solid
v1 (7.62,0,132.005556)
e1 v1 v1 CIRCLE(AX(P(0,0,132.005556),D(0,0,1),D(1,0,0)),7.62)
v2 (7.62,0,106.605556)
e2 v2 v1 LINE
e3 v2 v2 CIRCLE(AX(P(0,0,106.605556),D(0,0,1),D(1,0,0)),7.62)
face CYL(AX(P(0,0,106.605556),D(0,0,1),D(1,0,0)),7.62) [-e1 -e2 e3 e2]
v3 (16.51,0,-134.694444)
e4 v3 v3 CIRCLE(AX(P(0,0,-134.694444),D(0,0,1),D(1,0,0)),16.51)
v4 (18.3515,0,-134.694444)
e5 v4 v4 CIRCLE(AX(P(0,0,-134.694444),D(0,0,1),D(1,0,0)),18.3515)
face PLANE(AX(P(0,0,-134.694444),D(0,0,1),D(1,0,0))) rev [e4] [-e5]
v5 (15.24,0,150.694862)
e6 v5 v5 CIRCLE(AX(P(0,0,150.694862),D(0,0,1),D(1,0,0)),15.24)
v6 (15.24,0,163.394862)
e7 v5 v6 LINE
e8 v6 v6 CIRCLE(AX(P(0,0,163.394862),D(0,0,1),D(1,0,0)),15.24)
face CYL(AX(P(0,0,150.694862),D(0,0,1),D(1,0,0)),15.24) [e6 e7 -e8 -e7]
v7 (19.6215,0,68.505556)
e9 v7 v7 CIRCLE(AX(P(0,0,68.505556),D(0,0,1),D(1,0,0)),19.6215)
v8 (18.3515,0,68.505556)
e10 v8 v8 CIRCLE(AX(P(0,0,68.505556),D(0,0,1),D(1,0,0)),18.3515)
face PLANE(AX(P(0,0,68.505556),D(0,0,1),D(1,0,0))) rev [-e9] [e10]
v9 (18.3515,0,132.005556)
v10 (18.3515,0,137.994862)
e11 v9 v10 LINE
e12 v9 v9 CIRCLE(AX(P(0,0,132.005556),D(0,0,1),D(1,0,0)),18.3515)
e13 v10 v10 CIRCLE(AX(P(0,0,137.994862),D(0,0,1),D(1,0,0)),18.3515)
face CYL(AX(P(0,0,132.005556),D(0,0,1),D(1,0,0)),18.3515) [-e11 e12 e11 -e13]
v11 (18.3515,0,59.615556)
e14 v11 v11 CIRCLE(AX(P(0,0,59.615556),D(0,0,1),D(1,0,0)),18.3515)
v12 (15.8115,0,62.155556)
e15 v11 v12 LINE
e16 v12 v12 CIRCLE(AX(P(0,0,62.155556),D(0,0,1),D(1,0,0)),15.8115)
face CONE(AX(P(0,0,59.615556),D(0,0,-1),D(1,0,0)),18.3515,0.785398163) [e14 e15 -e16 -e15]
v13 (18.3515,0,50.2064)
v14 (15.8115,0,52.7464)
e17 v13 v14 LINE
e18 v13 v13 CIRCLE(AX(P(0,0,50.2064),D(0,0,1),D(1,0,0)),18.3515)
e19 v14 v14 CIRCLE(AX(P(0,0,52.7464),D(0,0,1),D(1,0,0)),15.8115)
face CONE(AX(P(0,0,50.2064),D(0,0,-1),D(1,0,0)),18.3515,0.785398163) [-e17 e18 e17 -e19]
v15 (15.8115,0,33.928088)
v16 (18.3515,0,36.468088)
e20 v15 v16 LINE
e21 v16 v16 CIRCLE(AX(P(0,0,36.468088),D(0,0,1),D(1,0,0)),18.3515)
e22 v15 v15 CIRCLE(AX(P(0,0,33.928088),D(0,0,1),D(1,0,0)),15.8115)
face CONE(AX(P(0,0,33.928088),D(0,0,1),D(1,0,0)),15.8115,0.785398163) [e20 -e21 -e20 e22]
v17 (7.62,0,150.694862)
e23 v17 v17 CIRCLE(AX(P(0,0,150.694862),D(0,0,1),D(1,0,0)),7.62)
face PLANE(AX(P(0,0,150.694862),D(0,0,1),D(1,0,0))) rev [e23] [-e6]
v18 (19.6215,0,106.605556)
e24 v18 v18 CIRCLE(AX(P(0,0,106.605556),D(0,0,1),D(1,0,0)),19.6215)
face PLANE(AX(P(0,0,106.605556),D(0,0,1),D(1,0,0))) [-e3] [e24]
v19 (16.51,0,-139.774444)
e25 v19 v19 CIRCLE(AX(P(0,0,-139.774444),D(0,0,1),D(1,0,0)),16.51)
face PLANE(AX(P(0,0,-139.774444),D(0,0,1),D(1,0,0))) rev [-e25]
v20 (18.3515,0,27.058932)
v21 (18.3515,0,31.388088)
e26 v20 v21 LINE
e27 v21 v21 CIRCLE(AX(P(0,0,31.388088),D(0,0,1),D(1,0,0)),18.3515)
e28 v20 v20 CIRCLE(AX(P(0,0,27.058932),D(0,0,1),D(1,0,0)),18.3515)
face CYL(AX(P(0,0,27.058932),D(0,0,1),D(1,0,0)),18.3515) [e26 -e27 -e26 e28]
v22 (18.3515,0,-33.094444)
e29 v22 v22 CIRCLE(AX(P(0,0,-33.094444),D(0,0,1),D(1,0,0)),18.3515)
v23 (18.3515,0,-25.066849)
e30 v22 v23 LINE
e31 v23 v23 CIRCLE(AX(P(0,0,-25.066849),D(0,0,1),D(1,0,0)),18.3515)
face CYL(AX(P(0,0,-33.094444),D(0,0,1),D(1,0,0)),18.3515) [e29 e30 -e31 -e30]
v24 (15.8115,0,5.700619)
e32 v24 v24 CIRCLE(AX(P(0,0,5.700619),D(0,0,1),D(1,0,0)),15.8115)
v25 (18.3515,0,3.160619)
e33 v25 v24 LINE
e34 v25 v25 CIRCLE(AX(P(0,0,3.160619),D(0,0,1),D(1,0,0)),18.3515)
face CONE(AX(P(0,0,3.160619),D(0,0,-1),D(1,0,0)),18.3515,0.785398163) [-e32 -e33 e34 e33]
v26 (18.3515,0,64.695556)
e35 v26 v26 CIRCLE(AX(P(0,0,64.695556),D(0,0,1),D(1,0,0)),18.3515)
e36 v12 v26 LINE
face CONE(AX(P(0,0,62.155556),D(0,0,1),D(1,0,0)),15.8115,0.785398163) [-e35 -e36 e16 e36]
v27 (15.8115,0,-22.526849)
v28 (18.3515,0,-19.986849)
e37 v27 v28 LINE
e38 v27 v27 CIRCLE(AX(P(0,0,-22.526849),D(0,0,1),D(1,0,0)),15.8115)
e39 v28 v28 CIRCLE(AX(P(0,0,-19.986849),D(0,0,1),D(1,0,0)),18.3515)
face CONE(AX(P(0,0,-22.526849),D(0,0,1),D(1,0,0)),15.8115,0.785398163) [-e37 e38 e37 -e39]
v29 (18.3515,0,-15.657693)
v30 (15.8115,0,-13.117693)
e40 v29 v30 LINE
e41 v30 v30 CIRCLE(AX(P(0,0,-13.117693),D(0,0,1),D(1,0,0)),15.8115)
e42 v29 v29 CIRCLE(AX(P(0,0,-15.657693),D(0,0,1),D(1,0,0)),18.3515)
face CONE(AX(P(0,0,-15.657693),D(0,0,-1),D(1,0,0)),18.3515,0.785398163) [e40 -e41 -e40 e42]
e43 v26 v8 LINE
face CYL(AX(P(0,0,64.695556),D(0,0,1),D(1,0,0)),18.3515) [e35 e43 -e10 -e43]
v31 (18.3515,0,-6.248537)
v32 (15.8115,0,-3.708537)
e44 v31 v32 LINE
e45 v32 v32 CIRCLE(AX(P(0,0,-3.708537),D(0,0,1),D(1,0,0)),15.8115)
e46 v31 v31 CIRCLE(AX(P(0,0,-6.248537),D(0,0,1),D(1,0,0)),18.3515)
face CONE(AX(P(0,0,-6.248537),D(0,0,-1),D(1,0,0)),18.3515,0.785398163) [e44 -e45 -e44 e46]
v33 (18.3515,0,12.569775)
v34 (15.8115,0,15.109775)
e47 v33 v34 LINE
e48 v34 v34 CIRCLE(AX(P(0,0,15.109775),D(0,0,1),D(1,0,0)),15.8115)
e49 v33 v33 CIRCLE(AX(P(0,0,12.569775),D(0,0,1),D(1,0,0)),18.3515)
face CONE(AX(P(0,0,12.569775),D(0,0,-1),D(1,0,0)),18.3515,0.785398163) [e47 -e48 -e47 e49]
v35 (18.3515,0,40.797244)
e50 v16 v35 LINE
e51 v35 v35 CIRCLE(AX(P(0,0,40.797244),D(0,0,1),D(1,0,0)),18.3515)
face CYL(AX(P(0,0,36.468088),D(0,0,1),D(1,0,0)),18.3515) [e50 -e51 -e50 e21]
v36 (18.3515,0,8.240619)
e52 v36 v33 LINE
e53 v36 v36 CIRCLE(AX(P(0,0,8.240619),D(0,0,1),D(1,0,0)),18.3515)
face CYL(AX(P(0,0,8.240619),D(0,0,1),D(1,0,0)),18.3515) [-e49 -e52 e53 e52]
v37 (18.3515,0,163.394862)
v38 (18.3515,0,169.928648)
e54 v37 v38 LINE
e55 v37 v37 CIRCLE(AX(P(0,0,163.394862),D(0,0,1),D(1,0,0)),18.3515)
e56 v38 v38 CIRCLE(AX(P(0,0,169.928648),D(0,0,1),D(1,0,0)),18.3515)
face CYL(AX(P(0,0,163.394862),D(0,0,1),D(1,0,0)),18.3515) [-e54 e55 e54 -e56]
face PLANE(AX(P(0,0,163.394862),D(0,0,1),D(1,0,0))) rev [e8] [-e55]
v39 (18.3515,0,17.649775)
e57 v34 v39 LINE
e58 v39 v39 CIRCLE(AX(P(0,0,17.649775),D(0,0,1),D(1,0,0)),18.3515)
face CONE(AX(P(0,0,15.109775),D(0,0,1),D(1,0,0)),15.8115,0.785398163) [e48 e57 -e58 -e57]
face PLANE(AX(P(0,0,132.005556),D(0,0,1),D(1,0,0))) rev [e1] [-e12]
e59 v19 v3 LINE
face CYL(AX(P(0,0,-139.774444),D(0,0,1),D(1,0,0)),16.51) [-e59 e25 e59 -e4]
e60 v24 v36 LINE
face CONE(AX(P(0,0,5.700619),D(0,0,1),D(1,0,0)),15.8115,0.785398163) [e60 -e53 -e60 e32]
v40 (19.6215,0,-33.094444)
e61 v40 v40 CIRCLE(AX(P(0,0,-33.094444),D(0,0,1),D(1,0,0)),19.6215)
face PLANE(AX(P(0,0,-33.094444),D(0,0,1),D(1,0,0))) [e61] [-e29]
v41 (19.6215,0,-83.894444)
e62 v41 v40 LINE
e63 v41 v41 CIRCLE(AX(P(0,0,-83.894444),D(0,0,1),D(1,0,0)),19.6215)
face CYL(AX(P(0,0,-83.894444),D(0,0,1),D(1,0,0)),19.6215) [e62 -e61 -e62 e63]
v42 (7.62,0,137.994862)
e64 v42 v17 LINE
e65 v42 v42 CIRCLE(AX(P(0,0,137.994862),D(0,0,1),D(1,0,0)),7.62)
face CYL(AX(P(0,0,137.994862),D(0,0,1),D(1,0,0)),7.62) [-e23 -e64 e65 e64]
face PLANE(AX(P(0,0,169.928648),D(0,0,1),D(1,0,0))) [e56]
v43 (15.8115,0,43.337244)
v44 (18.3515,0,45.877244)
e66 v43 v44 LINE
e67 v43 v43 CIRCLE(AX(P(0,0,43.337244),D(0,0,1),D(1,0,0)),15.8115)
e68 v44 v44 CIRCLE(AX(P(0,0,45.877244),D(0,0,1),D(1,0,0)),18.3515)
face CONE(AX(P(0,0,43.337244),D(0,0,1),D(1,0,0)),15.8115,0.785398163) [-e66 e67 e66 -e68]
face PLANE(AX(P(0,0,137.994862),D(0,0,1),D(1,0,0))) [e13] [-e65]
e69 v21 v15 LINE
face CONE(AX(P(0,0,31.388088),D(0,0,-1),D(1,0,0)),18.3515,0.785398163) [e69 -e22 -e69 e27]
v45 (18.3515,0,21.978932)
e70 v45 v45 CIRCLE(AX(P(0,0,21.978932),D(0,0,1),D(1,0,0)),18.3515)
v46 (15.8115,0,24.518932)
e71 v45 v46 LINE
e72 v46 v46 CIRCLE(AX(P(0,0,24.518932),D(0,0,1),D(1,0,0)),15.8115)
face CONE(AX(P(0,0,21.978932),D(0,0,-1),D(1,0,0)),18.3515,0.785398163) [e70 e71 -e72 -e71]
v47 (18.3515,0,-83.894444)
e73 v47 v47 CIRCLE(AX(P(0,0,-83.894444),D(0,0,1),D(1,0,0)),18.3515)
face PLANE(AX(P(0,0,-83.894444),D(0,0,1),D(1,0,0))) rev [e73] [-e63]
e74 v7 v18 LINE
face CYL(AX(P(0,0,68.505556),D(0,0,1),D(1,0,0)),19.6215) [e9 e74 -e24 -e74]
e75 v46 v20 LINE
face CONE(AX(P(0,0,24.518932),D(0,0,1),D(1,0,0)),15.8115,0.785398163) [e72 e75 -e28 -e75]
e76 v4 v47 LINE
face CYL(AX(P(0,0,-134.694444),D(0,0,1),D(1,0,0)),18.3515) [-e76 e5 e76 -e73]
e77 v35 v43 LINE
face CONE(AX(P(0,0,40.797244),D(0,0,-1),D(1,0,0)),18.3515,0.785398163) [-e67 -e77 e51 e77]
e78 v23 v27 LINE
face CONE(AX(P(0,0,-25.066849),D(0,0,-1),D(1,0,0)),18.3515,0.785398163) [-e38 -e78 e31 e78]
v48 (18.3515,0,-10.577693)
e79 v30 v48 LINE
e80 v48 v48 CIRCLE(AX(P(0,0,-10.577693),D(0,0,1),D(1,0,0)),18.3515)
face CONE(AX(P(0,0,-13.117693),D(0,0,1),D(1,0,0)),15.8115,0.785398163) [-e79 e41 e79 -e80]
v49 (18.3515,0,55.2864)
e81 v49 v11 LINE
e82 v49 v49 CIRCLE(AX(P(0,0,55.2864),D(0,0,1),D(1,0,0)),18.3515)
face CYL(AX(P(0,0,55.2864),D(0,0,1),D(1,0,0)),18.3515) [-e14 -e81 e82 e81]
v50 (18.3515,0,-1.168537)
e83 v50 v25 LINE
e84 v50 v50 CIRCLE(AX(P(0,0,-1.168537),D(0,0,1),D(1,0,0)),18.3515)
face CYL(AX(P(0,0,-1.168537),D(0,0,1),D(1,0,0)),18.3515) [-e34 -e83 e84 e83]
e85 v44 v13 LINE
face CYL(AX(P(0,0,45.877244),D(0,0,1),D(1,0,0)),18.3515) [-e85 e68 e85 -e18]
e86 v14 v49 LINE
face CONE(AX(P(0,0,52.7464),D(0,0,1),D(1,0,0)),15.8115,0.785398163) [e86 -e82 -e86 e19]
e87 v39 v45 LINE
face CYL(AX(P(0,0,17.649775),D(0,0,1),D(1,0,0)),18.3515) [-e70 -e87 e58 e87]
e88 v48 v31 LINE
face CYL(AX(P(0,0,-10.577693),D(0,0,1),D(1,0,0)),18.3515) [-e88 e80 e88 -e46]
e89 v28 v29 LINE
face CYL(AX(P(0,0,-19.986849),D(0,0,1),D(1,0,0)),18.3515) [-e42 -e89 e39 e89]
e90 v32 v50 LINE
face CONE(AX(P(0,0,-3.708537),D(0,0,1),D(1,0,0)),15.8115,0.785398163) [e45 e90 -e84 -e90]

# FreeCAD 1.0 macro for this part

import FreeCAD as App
import Part
import Sketcher
Q = App.Units.Quantity

doc = App.newDocument("Part")
body = doc.addObject("PartDesign::Body", "Body")

# Sketch on XZ plane
sketch1 = body.newObject("Sketcher::SketchObject", "Sketch")
sketch1.AttachmentSupport = (doc.getObject("XZ_Plane"), [""])
sketch1.MapMode = "FlatFace"
sketch1.addGeometry([
    Part.LineSegment(App.Vector(18.3515, 169.928648, 0), App.Vector(0, 169.928648, 0)),  # 0
    Part.LineSegment(App.Vector(0, 169.928648, 0), App.Vector(0, -139.774444, 0)),  # 1
    Part.LineSegment(App.Vector(0, -139.774444, 0), App.Vector(16.51, -139.774444, 0)),  # 2
    Part.LineSegment(App.Vector(16.51, -139.774444, 0), App.Vector(16.51, -134.694444, 0)),  # 3
    Part.LineSegment(App.Vector(16.51, -134.694444, 0), App.Vector(18.3515, -134.694444, 0)),  # 4
    Part.LineSegment(App.Vector(18.3515, -134.694444, 0), App.Vector(18.3515, -83.894444, 0)),  # 5
    Part.LineSegment(App.Vector(18.3515, -83.894444, 0), App.Vector(19.6215, -83.894444, 0)),  # 6
    Part.LineSegment(App.Vector(19.6215, -83.894444, 0), App.Vector(19.6215, -33.094444, 0)),  # 7
    Part.LineSegment(App.Vector(19.6215, -33.094444, 0), App.Vector(18.3515, -33.094444, 0)),  # 8
    Part.LineSegment(App.Vector(18.3515, -33.094444, 0), App.Vector(18.3515, -25.066849, 0)),  # 9
    Part.LineSegment(App.Vector(18.3515, -25.066849, 0), App.Vector(15.8115, -22.526849, 0)),  # 10
    Part.LineSegment(App.Vector(15.8115, -22.526849, 0), App.Vector(18.3515, -19.986849, 0)),  # 11
    Part.LineSegment(App.Vector(18.3515, -19.986849, 0), App.Vector(18.3515, -15.657693, 0)),  # 12
    Part.LineSegment(App.Vector(18.3515, -15.657693, 0), App.Vector(15.8115, -13.117693, 0)),  # 13
    Part.LineSegment(App.Vector(15.8115, -13.117693, 0), App.Vector(18.3515, -10.577693, 0)),  # 14
    Part.LineSegment(App.Vector(18.3515, -10.577693, 0), App.Vector(18.3515, -6.248537, 0)),  # 15
    Part.LineSegment(App.Vector(18.3515, -6.248537, 0), App.Vector(15.8115, -3.708537, 0)),  # 16
    Part.LineSegment(App.Vector(15.8115, -3.708537, 0), App.Vector(18.3515, -1.168537, 0)),  # 17
    Part.LineSegment(App.Vector(18.3515, -1.168537, 0), App.Vector(18.3515, 3.160619, 0)),  # 18
    Part.LineSegment(App.Vector(18.3515, 3.160619, 0), App.Vector(15.8115, 5.700619, 0)),  # 19
    Part.LineSegment(App.Vector(15.8115, 5.700619, 0), App.Vector(18.3515, 8.240619, 0)),  # 20
    Part.LineSegment(App.Vector(18.3515, 8.240619, 0), App.Vector(18.3515, 12.569775, 0)),  # 21
    Part.LineSegment(App.Vector(18.3515, 12.569775, 0), App.Vector(15.8115, 15.109775, 0)),  # 22
    Part.LineSegment(App.Vector(15.8115, 15.109775, 0), App.Vector(18.3515, 17.649775, 0)),  # 23
    Part.LineSegment(App.Vector(18.3515, 17.649775, 0), App.Vector(18.3515, 21.978932, 0)),  # 24
    Part.LineSegment(App.Vector(18.3515, 21.978932, 0), App.Vector(15.8115, 24.518932, 0)),  # 25
    Part.LineSegment(App.Vector(15.8115, 24.518932, 0), App.Vector(18.3515, 27.058932, 0)),  # 26
    Part.LineSegment(App.Vector(18.3515, 27.058932, 0), App.Vector(18.3515, 31.388088, 0)),  # 27
    Part.LineSegment(App.Vector(18.3515, 31.388088, 0), App.Vector(15.8115, 33.928088, 0)),  # 28
    Part.LineSegment(App.Vector(15.8115, 33.928088, 0), App.Vector(18.3515, 36.468088, 0)),  # 29
    Part.LineSegment(App.Vector(18.3515, 36.468088, 0), App.Vector(18.3515, 40.797244, 0)),  # 30
    Part.LineSegment(App.Vector(18.3515, 40.797244, 0), App.Vector(15.8115, 43.337244, 0)),  # 31
    Part.LineSegment(App.Vector(15.8115, 43.337244, 0), App.Vector(18.3515, 45.877244, 0)),  # 32
    Part.LineSegment(App.Vector(18.3515, 45.877244, 0), App.Vector(18.3515, 50.2064, 0)),  # 33
    Part.LineSegment(App.Vector(18.3515, 50.2064, 0), App.Vector(15.8115, 52.7464, 0)),  # 34
    Part.LineSegment(App.Vector(15.8115, 52.7464, 0), App.Vector(18.3515, 55.2864, 0)),  # 35
    Part.LineSegment(App.Vector(18.3515, 55.2864, 0), App.Vector(18.3515, 59.615556, 0)),  # 36
    Part.LineSegment(App.Vector(18.3515, 59.615556, 0), App.Vector(15.8115, 62.155556, 0)),  # 37
    Part.LineSegment(App.Vector(15.8115, 62.155556, 0), App.Vector(18.3515, 64.695556, 0)),  # 38
    Part.LineSegment(App.Vector(18.3515, 64.695556, 0), App.Vector(18.3515, 68.505556, 0)),  # 39
    Part.LineSegment(App.Vector(18.3515, 68.505556, 0), App.Vector(19.6215, 68.505556, 0)),  # 40
    Part.LineSegment(App.Vector(19.6215, 68.505556, 0), App.Vector(19.6215, 106.605556, 0)),  # 41
    Part.LineSegment(App.Vector(19.6215, 106.605556, 0), App.Vector(7.62, 106.605556, 0)),  # 42
    Part.LineSegment(App.Vector(7.62, 106.605556, 0), App.Vector(7.62, 132.005556, 0)),  # 43
    Part.LineSegment(App.Vector(7.62, 132.005556, 0), App.Vector(18.3515, 132.005556, 0)),  # 44
    Part.LineSegment(App.Vector(18.3515, 132.005556, 0), App.Vector(18.3515, 137.994862, 0)),  # 45
    Part.LineSegment(App.Vector(18.3515, 137.994862, 0), App.Vector(7.62, 137.994862, 0)),  # 46
    Part.LineSegment(App.Vector(7.62, 137.994862, 0), App.Vector(7.62, 150.694862, 0)),  # 47
    Part.LineSegment(App.Vector(7.62, 150.694862, 0), App.Vector(15.24, 150.694862, 0)),  # 48
    Part.LineSegment(App.Vector(15.24, 150.694862, 0), App.Vector(15.24, 163.394862, 0)),  # 49
    Part.LineSegment(App.Vector(15.24, 163.394862, 0), App.Vector(18.3515, 163.394862, 0)),  # 50
    Part.LineSegment(App.Vector(18.3515, 163.394862, 0), App.Vector(18.3515, 169.928648, 0)),  # 51
], False)
sketch1.addConstraint([
    Sketcher.Constraint("Coincident", 0, 2, 1, 1),
    Sketcher.Constraint("Coincident", 1, 2, 2, 1),
    Sketcher.Constraint("Coincident", 2, 2, 3, 1),
    Sketcher.Constraint("Coincident", 3, 2, 4, 1),
    Sketcher.Constraint("Coincident", 4, 2, 5, 1),
    Sketcher.Constraint("Coincident", 5, 2, 6, 1),
    Sketcher.Constraint("Coincident", 6, 2, 7, 1),
    Sketcher.Constraint("Coincident", 7, 2, 8, 1),
    Sketcher.Constraint("Coincident", 8, 2, 9, 1),
    Sketcher.Constraint("Coincident", 9, 2, 10, 1),
    Sketcher.Constraint("Coincident", 10, 2, 11, 1),
    Sketcher.Constraint("Coincident", 11, 2, 12, 1),
    Sketcher.Constraint("Coincident", 12, 2, 13, 1),
    Sketcher.Constraint("Coincident", 13, 2, 14, 1),
    Sketcher.Constraint("Coincident", 14, 2, 15, 1),
    Sketcher.Constraint("Coincident", 15, 2, 16, 1),
    Sketcher.Constraint("Coincident", 16, 2, 17, 1),
    Sketcher.Constraint("Coincident", 17, 2, 18, 1),
    Sketcher.Constraint("Coincident", 18, 2, 19, 1),
    Sketcher.Constraint("Coincident", 19, 2, 20, 1),
    Sketcher.Constraint("Coincident", 20, 2, 21, 1),
    Sketcher.Constraint("Coincident", 21, 2, 22, 1),
    Sketcher.Constraint("Coincident", 22, 2, 23, 1),
    Sketcher.Constraint("Coincident", 23, 2, 24, 1),
    Sketcher.Constraint("Coincident", 24, 2, 25, 1),
    Sketcher.Constraint("Coincident", 25, 2, 26, 1),
    Sketcher.Constraint("Coincident", 26, 2, 27, 1),
    Sketcher.Constraint("Coincident", 27, 2, 28, 1),
    Sketcher.Constraint("Coincident", 28, 2, 29, 1),
    Sketcher.Constraint("Coincident", 29, 2, 30, 1),
    Sketcher.Constraint("Coincident", 30, 2, 31, 1),
    Sketcher.Constraint("Coincident", 31, 2, 32, 1),
    Sketcher.Constraint("Coincident", 32, 2, 33, 1),
    Sketcher.Constraint("Coincident", 33, 2, 34, 1),
    Sketcher.Constraint("Coincident", 34, 2, 35, 1),
    Sketcher.Constraint("Coincident", 35, 2, 36, 1),
    Sketcher.Constraint("Coincident", 36, 2, 37, 1),
    Sketcher.Constraint("Coincident", 37, 2, 38, 1),
    Sketcher.Constraint("Coincident", 38, 2, 39, 1),
    Sketcher.Constraint("Coincident", 39, 2, 40, 1),
    Sketcher.Constraint("Coincident", 40, 2, 41, 1),
    Sketcher.Constraint("Coincident", 41, 2, 42, 1),
    Sketcher.Constraint("Coincident", 42, 2, 43, 1),
    Sketcher.Constraint("Coincident", 43, 2, 44, 1),
    Sketcher.Constraint("Coincident", 44, 2, 45, 1),
    Sketcher.Constraint("Coincident", 45, 2, 46, 1),
    Sketcher.Constraint("Coincident", 46, 2, 47, 1),
    Sketcher.Constraint("Coincident", 47, 2, 48, 1),
    Sketcher.Constraint("Coincident", 48, 2, 49, 1),
    Sketcher.Constraint("Coincident", 49, 2, 50, 1),
    Sketcher.Constraint("Coincident", 50, 2, 51, 1),
    Sketcher.Constraint("Coincident", 51, 2, 0, 1),
    Sketcher.Constraint("Horizontal", 0),
    Sketcher.Constraint("Vertical", 1),
    Sketcher.Constraint("Horizontal", 2),
    Sketcher.Constraint("Vertical", 3),
    Sketcher.Constraint("Horizontal", 4),
    Sketcher.Constraint("Vertical", 5),
    Sketcher.Constraint("Horizontal", 6),
    Sketcher.Constraint("Vertical", 7),
    Sketcher.Constraint("Horizontal", 8),
    Sketcher.Constraint("Vertical", 9),
    Sketcher.Constraint("Vertical", 12),
    Sketcher.Constraint("Vertical", 15),
    Sketcher.Constraint("Vertical", 18),
    Sketcher.Constraint("Vertical", 21),
    Sketcher.Constraint("Vertical", 24),
    Sketcher.Constraint("Vertical", 27),
    Sketcher.Constraint("Vertical", 30),
    Sketcher.Constraint("Vertical", 33),
    Sketcher.Constraint("Vertical", 36),
    Sketcher.Constraint("Vertical", 39),
    Sketcher.Constraint("Horizontal", 40),
    Sketcher.Constraint("Vertical", 41),
    Sketcher.Constraint("Horizontal", 42),
    Sketcher.Constraint("Vertical", 43),
    Sketcher.Constraint("Horizontal", 44),
    Sketcher.Constraint("Vertical", 45),
    Sketcher.Constraint("Horizontal", 46),
    Sketcher.Constraint("Vertical", 47),
    Sketcher.Constraint("Horizontal", 48),
    Sketcher.Constraint("Vertical", 49),
    Sketcher.Constraint("Horizontal", 50),
    Sketcher.Constraint("Vertical", 51),
    Sketcher.Constraint("PointOnObject", 0, 2, -2),
    Sketcher.Constraint("Perpendicular", 10, 11),
    Sketcher.Constraint("Perpendicular", 11, 13),
    Sketcher.Constraint("Perpendicular", 13, 14),
    Sketcher.Constraint("Perpendicular", 14, 16),
    Sketcher.Constraint("Perpendicular", 16, 17),
    Sketcher.Constraint("Perpendicular", 17, 19),
    Sketcher.Constraint("Perpendicular", 19, 20),
    Sketcher.Constraint("Perpendicular", 20, 22),
    Sketcher.Constraint("Perpendicular", 22, 23),
    Sketcher.Constraint("Perpendicular", 23, 25),
    Sketcher.Constraint("Perpendicular", 25, 26),
    Sketcher.Constraint("Perpendicular", 26, 28),
    Sketcher.Constraint("Perpendicular", 28, 29),
    Sketcher.Constraint("Perpendicular", 29, 31),
    Sketcher.Constraint("Perpendicular", 31, 32),
    Sketcher.Constraint("Perpendicular", 32, 34),
    Sketcher.Constraint("Perpendicular", 34, 35),
    Sketcher.Constraint("Perpendicular", 35, 37),
    Sketcher.Constraint("Perpendicular", 37, 38),
    Sketcher.Constraint("Vertical", 5, 2, 8, 2),
    Sketcher.Constraint("Vertical", 9, 2, 11, 2),
    Sketcher.Constraint("Vertical", 10, 2, 13, 2),
    Sketcher.Constraint("Vertical", 12, 2, 14, 2),
    Sketcher.Constraint("Vertical", 13, 2, 16, 2),
    Sketcher.Constraint("Vertical", 15, 2, 17, 2),
    Sketcher.Constraint("Vertical", 16, 2, 19, 2),
    Sketcher.Constraint("Vertical", 18, 2, 20, 2),
    Sketcher.Constraint("Vertical", 19, 2, 22, 2),
    Sketcher.Constraint("Vertical", 21, 2, 23, 2),
    Sketcher.Constraint("Vertical", 22, 2, 25, 2),
    Sketcher.Constraint("Vertical", 24, 2, 26, 2),
    Sketcher.Constraint("Vertical", 25, 2, 28, 2),
    Sketcher.Constraint("Vertical", 27, 2, 29, 2),
    Sketcher.Constraint("Vertical", 28, 2, 31, 2),
    Sketcher.Constraint("Vertical", 30, 2, 32, 2),
    Sketcher.Constraint("Vertical", 31, 2, 34, 2),
    Sketcher.Constraint("Vertical", 33, 2, 35, 2),
    Sketcher.Constraint("Vertical", 34, 2, 37, 2),
    Sketcher.Constraint("Vertical", 36, 2, 38, 2),
    Sketcher.Constraint("Vertical", 7, 2, 40, 2),
    Sketcher.Constraint("Vertical", 39, 2, 44, 2),
    Sketcher.Constraint("Vertical", 43, 2, 46, 2),
    Sketcher.Constraint("Vertical", 45, 2, 50, 2),
    Sketcher.Constraint("Equal", 5, 7),
    Sketcher.Constraint("Equal", 12, 15),
    Sketcher.Constraint("Equal", 15, 18),
    Sketcher.Constraint("Equal", 18, 21),
    Sketcher.Constraint("Equal", 21, 24),
    Sketcher.Constraint("Equal", 24, 27),
    Sketcher.Constraint("Equal", 27, 30),
    Sketcher.Constraint("Equal", 30, 33),
    Sketcher.Constraint("Equal", 33, 36),
    Sketcher.Constraint("Equal", 47, 49),
    Sketcher.Constraint("Equal", 10, 11),
    Sketcher.Constraint("DistanceY", 5, 1, 5, 2, Q("2 in")),
    Sketcher.Constraint("DistanceY", 43, 1, 43, 2, Q("1 in")),
    Sketcher.Constraint("DistanceX", 48, 1, 48, 2, Q("0.3 in")),
    Sketcher.Constraint("DistanceY", 3, 1, 3, 2, Q("0.2 in")),
    Sketcher.Constraint("DistanceY", 41, 1, 41, 2, Q("1.5 in")),
    Sketcher.Constraint("DistanceY", 47, 1, 47, 2, Q("0.5 in")),
    Sketcher.Constraint("DistanceX", 2, 1, 2, 2, Q("0.65 in")),
    Sketcher.Constraint("DistanceX", 6, 1, 6, 2, Q("0.05 in")),
    Sketcher.Constraint("DistanceY", 39, 1, 39, 2, Q("0.15 in")),
    Sketcher.Constraint("DistanceX", -1, 1, 42, 2, Q("0.3 in")),
    Sketcher.Constraint("DistanceX", 10, 2, 9, 2, Q("0.1 in")),
    Sketcher.Constraint("DistanceX", 0, 2, 0, 1, Q("0.7225 in")),
    Sketcher.Constraint("DistanceY", 1, 2, 1, 1, Q("309.703092 mm")),
    Sketcher.Constraint("DistanceY", -1, 1, 33, 2, Q("50.2064 mm")),
    Sketcher.Constraint("DistanceY", 9, 1, 9, 2, Q("8.027595 mm")),
    Sketcher.Constraint("DistanceY", 12, 1, 12, 2, Q("4.329156 mm")),
    Sketcher.Constraint("DistanceY", 45, 1, 45, 2, Q("5.989306 mm")),
])
revolution = body.newObject("PartDesign::Revolution", "Revolution")
revolution.Profile = sketch1
revolution.ReferenceAxis = (sketch1, ["V_Axis"])
revolution.Angle = 360

doc.recompute()
